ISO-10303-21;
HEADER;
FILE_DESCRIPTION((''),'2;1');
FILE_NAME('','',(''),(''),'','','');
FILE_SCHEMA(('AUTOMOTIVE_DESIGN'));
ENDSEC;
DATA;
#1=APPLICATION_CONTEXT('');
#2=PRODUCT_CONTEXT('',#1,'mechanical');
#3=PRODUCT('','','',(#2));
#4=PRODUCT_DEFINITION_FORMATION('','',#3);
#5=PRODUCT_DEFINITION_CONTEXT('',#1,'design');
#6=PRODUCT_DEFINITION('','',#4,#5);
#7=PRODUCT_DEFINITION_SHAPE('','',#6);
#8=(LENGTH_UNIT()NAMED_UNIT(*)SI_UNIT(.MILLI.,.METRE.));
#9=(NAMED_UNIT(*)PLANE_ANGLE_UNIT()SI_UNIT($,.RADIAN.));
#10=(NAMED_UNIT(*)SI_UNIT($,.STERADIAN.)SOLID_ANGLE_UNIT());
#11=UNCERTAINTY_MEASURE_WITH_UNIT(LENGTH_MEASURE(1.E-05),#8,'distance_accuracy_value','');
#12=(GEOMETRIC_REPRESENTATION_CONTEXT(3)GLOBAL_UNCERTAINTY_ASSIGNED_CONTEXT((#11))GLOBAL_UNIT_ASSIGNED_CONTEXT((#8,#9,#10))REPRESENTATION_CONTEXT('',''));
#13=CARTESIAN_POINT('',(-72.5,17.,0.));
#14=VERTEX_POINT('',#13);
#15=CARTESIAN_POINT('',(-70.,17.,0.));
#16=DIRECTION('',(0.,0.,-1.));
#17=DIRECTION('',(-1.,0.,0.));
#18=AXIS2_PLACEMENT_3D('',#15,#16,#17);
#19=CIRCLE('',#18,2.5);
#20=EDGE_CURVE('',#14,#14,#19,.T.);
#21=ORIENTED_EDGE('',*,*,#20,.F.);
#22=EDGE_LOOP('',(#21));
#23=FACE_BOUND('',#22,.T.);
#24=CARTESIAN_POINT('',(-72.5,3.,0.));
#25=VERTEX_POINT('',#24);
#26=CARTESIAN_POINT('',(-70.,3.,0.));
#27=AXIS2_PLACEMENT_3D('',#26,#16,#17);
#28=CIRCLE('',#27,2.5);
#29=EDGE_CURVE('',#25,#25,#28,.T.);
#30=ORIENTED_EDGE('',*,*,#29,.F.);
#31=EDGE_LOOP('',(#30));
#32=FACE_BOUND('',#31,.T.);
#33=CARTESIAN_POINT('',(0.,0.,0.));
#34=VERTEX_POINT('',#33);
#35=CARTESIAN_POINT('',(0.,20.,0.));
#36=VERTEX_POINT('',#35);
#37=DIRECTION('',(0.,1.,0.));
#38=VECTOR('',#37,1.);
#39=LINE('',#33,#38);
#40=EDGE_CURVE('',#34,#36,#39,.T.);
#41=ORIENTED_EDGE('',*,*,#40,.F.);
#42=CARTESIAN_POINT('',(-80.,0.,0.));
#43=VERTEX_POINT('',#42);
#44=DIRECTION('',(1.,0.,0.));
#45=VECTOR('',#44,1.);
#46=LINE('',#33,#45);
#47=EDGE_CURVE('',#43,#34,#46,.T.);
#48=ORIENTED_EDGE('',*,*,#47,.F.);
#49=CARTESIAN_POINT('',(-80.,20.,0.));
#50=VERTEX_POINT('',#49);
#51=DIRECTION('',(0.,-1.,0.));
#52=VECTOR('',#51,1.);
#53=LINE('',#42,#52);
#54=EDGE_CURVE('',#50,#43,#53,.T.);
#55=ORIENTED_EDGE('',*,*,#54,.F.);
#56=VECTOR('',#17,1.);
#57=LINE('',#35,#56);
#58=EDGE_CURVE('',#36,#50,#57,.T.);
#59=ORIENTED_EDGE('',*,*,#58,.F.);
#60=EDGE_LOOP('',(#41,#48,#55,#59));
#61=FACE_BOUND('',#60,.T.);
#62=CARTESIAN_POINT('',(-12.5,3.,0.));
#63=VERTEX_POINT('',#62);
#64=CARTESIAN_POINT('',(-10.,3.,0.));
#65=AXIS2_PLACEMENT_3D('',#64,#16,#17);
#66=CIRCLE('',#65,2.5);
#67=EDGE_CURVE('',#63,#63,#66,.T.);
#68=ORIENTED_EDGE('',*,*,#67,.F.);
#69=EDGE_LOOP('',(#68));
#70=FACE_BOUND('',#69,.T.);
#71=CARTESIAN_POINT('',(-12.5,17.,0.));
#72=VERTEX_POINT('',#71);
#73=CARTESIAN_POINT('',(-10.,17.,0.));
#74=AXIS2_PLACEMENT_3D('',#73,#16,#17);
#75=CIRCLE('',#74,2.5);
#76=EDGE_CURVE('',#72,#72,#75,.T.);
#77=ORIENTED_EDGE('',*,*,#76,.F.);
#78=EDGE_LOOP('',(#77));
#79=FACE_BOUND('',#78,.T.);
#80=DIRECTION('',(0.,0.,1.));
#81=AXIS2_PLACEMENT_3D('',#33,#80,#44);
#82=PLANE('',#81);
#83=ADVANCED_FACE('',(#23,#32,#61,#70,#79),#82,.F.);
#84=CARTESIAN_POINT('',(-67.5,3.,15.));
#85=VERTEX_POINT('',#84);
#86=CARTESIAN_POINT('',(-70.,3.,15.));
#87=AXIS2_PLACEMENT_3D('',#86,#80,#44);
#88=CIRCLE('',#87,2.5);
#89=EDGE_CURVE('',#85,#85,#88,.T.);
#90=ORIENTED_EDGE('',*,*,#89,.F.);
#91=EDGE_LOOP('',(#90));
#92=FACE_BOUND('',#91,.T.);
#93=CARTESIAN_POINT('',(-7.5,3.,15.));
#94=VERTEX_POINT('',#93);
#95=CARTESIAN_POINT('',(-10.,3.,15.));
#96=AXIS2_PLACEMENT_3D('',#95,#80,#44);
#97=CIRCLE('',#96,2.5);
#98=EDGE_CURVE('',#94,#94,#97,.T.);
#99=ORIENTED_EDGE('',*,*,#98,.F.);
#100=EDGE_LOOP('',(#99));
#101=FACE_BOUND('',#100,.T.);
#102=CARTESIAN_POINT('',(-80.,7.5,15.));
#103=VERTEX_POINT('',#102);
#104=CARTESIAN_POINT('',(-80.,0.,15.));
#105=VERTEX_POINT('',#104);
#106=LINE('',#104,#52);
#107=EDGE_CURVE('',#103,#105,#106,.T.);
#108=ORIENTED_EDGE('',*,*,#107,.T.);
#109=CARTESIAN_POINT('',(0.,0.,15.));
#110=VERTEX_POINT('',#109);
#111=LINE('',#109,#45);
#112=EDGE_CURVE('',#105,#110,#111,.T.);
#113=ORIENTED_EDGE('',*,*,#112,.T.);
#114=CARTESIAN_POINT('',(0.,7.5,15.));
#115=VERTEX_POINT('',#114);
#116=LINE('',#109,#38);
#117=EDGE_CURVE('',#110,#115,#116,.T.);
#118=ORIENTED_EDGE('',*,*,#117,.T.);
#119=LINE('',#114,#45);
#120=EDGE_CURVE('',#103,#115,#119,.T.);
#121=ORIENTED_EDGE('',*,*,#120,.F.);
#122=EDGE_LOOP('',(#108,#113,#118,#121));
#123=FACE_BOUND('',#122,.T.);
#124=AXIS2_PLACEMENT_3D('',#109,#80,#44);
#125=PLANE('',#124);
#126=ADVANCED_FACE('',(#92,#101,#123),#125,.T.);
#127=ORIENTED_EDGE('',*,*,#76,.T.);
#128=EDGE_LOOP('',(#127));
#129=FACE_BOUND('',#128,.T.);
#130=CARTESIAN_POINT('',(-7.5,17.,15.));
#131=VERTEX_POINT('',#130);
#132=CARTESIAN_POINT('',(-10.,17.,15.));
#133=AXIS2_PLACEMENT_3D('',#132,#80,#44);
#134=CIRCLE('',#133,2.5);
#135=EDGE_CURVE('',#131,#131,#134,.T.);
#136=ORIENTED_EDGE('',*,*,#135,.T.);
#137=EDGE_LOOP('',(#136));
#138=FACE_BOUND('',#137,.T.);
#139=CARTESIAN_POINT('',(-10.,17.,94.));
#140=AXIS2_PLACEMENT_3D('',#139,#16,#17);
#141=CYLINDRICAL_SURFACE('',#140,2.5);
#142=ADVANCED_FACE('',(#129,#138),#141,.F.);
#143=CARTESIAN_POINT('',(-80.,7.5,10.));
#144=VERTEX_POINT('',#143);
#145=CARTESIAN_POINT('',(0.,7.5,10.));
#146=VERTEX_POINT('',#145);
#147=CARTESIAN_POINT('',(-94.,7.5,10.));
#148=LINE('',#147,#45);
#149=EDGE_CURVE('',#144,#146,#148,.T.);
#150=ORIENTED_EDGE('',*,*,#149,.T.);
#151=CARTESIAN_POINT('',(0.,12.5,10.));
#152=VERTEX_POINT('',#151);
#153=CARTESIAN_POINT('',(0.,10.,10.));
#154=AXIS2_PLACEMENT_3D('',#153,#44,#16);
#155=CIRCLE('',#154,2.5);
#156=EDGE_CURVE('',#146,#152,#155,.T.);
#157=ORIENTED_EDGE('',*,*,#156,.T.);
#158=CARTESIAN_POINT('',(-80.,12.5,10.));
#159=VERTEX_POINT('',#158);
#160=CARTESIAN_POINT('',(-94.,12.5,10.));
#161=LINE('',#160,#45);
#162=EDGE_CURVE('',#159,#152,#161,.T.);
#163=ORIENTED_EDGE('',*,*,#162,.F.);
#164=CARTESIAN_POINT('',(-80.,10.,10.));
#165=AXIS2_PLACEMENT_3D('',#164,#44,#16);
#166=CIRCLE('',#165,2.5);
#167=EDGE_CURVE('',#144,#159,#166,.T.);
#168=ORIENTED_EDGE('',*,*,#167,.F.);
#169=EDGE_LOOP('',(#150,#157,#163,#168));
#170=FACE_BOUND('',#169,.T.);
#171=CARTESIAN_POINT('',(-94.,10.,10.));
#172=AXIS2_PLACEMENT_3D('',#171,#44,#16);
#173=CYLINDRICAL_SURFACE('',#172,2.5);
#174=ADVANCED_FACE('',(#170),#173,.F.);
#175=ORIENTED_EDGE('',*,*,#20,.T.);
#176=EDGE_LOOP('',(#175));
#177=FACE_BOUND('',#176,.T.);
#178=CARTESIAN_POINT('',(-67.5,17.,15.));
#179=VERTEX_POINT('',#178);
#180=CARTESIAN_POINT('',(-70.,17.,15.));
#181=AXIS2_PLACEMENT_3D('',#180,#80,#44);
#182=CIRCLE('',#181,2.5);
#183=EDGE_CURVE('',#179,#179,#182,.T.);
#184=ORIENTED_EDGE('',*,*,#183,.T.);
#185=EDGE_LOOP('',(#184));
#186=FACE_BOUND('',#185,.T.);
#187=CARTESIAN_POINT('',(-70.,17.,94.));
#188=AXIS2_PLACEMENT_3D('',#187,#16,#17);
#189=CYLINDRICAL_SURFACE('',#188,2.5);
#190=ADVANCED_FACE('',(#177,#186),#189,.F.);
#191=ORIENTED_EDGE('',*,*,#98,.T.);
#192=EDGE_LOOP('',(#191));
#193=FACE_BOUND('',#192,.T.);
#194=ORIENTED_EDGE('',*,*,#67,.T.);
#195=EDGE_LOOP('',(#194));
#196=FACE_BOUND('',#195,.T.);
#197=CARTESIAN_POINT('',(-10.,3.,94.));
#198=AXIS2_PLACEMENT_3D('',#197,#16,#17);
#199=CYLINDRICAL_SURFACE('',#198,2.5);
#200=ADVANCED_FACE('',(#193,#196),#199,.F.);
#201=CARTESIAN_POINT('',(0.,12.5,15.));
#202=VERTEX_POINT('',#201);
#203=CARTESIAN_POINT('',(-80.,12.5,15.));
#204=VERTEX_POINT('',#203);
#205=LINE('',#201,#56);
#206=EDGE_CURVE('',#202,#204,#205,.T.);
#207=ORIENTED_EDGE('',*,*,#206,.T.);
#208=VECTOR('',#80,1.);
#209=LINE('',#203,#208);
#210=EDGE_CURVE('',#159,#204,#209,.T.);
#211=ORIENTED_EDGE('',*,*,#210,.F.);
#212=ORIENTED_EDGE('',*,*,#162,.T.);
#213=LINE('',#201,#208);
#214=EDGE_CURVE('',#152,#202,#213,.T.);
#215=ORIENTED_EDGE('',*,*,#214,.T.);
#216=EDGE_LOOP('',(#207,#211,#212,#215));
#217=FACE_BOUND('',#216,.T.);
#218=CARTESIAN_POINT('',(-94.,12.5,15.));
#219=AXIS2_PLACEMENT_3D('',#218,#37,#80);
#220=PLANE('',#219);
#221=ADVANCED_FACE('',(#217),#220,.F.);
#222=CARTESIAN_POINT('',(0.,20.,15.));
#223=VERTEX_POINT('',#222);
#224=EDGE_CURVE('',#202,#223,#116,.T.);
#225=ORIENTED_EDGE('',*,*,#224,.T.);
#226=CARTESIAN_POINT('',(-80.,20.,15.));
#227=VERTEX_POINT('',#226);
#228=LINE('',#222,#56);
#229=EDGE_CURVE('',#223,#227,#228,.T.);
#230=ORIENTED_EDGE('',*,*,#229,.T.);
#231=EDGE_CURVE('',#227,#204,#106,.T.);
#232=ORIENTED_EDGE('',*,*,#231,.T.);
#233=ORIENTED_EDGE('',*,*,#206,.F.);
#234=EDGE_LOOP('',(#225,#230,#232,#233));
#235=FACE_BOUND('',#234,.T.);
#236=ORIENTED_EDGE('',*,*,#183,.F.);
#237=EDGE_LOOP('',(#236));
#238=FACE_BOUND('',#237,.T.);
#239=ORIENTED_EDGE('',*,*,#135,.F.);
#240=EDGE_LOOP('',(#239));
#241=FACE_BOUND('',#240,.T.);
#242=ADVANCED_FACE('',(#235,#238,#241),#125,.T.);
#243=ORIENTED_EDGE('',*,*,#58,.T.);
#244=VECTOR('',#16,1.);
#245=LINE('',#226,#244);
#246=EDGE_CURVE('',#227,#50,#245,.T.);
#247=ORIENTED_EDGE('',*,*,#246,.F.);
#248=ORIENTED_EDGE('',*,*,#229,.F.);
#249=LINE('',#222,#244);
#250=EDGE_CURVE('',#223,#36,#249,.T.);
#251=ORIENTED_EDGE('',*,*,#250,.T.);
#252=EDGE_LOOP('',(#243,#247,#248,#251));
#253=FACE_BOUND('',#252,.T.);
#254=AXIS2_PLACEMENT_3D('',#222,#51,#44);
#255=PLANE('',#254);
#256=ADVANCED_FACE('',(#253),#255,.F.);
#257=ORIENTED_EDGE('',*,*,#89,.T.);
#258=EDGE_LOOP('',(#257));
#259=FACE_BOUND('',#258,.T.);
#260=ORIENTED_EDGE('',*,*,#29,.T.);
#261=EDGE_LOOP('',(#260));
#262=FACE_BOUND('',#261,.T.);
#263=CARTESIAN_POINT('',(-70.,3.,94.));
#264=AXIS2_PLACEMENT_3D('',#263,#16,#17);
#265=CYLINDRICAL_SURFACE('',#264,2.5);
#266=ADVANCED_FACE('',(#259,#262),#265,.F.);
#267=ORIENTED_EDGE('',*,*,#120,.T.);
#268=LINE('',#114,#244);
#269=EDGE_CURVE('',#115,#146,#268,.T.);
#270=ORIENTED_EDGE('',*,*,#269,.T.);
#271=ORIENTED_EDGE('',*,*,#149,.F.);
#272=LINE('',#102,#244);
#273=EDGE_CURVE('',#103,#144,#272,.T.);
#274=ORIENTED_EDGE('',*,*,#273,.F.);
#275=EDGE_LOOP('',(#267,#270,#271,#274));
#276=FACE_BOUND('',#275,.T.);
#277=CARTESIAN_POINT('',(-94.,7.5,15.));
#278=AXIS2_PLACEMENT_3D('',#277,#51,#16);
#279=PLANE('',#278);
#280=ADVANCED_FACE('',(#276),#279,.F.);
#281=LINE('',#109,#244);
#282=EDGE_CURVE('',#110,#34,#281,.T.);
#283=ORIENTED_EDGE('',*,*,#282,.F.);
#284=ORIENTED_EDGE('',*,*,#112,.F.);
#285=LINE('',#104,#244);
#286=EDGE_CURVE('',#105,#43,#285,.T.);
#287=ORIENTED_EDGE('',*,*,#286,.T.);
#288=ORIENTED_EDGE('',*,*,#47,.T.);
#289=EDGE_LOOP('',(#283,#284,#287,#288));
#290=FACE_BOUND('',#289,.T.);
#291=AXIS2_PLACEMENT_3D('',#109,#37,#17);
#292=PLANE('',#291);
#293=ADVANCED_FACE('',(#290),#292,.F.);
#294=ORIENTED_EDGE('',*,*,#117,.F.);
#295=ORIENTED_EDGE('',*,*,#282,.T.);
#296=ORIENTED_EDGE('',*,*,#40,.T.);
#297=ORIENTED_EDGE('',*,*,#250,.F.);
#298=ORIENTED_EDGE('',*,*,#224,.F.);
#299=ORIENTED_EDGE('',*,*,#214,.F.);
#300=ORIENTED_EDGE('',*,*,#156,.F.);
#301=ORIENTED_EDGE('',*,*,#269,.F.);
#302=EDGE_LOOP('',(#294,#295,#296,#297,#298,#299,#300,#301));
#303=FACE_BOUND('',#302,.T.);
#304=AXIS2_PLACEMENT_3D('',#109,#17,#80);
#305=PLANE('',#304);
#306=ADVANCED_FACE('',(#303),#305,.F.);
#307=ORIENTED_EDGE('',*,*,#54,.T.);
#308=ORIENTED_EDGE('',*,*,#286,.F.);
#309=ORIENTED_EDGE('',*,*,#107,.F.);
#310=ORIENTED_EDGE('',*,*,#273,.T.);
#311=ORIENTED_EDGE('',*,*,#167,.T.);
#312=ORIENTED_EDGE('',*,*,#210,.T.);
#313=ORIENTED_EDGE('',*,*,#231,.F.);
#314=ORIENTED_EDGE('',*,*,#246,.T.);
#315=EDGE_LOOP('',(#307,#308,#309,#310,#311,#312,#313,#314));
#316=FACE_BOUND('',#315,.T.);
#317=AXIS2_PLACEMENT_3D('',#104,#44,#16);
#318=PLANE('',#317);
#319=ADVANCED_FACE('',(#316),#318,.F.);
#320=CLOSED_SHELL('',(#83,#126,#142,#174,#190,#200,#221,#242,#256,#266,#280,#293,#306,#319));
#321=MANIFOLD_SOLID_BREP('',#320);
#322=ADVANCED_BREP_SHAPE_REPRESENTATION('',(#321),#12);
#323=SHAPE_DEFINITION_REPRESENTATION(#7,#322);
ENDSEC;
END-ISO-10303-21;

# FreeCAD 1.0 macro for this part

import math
import FreeCAD as App
import Part
import Sketcher

V = App.Vector
Q = App.Units.Quantity

doc = App.newDocument("Part")
body = doc.addObject("PartDesign::Body", "Body")

# Sketch on XY plane
sketch1 = body.newObject("Sketcher::SketchObject", "Sketch")
sketch1.AttachmentSupport = (doc.getObject("XY_Plane"), [""])
sketch1.MapMode = "FlatFace"
sketch1.addGeometry(Part.LineSegment(V(-80, 20, 0), V(-80, 0, 0)), False)
sketch1.addGeometry(Part.LineSegment(V(-80, 0, 0), V(0, 0, 0)), False)
sketch1.addGeometry(Part.LineSegment(V(0, 0, 0), V(0, 20, 0)), False)
sketch1.addGeometry(Part.LineSegment(V(0, 20, 0), V(-80, 20, 0)), False)
sketch1.addConstraint(Sketcher.Constraint("Coincident", 0, 2, 1, 1))
sketch1.addConstraint(Sketcher.Constraint("Coincident", 1, 2, 2, 1))
sketch1.addConstraint(Sketcher.Constraint("Coincident", 2, 2, 3, 1))
sketch1.addConstraint(Sketcher.Constraint("Coincident", 3, 2, 0, 1))
sketch1.addConstraint(Sketcher.Constraint("Vertical", 0))
sketch1.addConstraint(Sketcher.Constraint("Horizontal", 1))
sketch1.addConstraint(Sketcher.Constraint("Vertical", 2))
sketch1.addConstraint(Sketcher.Constraint("Horizontal", 3))
sketch1.addConstraint(Sketcher.Constraint("Coincident", 1, 2, -1, 1))
sketch1.addConstraint(Sketcher.Constraint("DistanceX", 1, 1, 1, 2, Q("80 mm")))
sketch1.addConstraint(Sketcher.Constraint("DistanceY", 0, 2, 0, 1, Q("20 mm")))
pad1 = body.newObject("PartDesign::Pad", "Pad")
pad1.Profile = sketch1
pad1.Length = 15

# Sketch on YZ plane
sketch2 = body.newObject("Sketcher::SketchObject", "Sketch001")
sketch2.AttachmentSupport = (doc.getObject("YZ_Plane"), [""])
sketch2.MapMode = "FlatFace"
sketch2.addGeometry(Part.LineSegment(V(7.5, 15, 0), V(7.5, 10, 0)), False)
sketch2.addGeometry(Part.ArcOfCircle(Part.Circle(V(10, 10, 0), V(0, 0, 1), 2.5), math.radians(180), math.radians(360)), False)
sketch2.addGeometry(Part.LineSegment(V(12.5, 10, 0), V(12.5, 15, 0)), False)
sketch2.addGeometry(Part.LineSegment(V(12.5, 15, 0), V(7.5, 15, 0)), False)
sketch2.addConstraint(Sketcher.Constraint("Tangent", 0, 2, 1, 1))
sketch2.addConstraint(Sketcher.Constraint("Tangent", 1, 2, 2, 1))
sketch2.addConstraint(Sketcher.Constraint("Coincident", 2, 2, 3, 1))
sketch2.addConstraint(Sketcher.Constraint("Coincident", 3, 2, 0, 1))
sketch2.addConstraint(Sketcher.Constraint("Vertical", 0))
sketch2.addConstraint(Sketcher.Constraint("Vertical", 2))
sketch2.addConstraint(Sketcher.Constraint("Horizontal", 3))
sketch2.addConstraint(Sketcher.Constraint("Equal", 3, 0))
sketch2.addConstraint(Sketcher.Constraint("Radius", 1, Q("2.5 mm")))
sketch2.addConstraint(Sketcher.Constraint("DistanceX", -1, 1, 1, 3, Q("10 mm")))
sketch2.addConstraint(Sketcher.Constraint("DistanceY", -1, 1, 1, 3, Q("10 mm")))
pocket1 = body.newObject("PartDesign::Pocket", "Pocket")
pocket1.Profile = sketch2
pocket1.Length = 94

# Sketch on XY plane
sketch3 = body.newObject("Sketcher::SketchObject", "Sketch002")
sketch3.AttachmentSupport = (doc.getObject("XY_Plane"), [""])
sketch3.MapMode = "FlatFace"
sketch3.addGeometry(Part.Circle(V(-10, 17, 0), V(0, 0, 1), 2.5), False)
sketch3.addGeometry(Part.Circle(V(-10, 3, 0), V(0, 0, 1), 2.5), False)
sketch3.addGeometry(Part.Circle(V(-70, 17, 0), V(0, 0, 1), 2.5), False)
sketch3.addGeometry(Part.Circle(V(-70, 3, 0), V(0, 0, 1), 2.5), False)
sketch3.addConstraint(Sketcher.Constraint("Equal", 0, 1))
sketch3.addConstraint(Sketcher.Constraint("Equal", 1, 2))
sketch3.addConstraint(Sketcher.Constraint("Equal", 2, 3))
sketch3.addConstraint(Sketcher.Constraint("Horizontal", 0, 3, 2, 3))
sketch3.addConstraint(Sketcher.Constraint("Horizontal", 1, 3, 3, 3))
sketch3.addConstraint(Sketcher.Constraint("Vertical", 0, 3, 1, 3))
sketch3.addConstraint(Sketcher.Constraint("Vertical", 2, 3, 3, 3))
sketch3.addConstraint(Sketcher.Constraint("Diameter", 0, Q("5 mm")))
sketch3.addConstraint(Sketcher.Constraint("DistanceX", 0, 3, -1, 1, Q("10 mm")))
sketch3.addConstraint(Sketcher.Constraint("DistanceY", -1, 1, 0, 3, Q("17 mm")))
sketch3.addConstraint(Sketcher.Constraint("DistanceY", -1, 1, 1, 3, Q("3 mm")))
sketch3.addConstraint(Sketcher.Constraint("DistanceX", 2, 3, -1, 1, Q("70 mm")))
pocket2 = body.newObject("PartDesign::Pocket", "Pocket001")
pocket2.Profile = sketch3
pocket2.Length = 94
pocket2.Reversed = True

doc.recompute()
